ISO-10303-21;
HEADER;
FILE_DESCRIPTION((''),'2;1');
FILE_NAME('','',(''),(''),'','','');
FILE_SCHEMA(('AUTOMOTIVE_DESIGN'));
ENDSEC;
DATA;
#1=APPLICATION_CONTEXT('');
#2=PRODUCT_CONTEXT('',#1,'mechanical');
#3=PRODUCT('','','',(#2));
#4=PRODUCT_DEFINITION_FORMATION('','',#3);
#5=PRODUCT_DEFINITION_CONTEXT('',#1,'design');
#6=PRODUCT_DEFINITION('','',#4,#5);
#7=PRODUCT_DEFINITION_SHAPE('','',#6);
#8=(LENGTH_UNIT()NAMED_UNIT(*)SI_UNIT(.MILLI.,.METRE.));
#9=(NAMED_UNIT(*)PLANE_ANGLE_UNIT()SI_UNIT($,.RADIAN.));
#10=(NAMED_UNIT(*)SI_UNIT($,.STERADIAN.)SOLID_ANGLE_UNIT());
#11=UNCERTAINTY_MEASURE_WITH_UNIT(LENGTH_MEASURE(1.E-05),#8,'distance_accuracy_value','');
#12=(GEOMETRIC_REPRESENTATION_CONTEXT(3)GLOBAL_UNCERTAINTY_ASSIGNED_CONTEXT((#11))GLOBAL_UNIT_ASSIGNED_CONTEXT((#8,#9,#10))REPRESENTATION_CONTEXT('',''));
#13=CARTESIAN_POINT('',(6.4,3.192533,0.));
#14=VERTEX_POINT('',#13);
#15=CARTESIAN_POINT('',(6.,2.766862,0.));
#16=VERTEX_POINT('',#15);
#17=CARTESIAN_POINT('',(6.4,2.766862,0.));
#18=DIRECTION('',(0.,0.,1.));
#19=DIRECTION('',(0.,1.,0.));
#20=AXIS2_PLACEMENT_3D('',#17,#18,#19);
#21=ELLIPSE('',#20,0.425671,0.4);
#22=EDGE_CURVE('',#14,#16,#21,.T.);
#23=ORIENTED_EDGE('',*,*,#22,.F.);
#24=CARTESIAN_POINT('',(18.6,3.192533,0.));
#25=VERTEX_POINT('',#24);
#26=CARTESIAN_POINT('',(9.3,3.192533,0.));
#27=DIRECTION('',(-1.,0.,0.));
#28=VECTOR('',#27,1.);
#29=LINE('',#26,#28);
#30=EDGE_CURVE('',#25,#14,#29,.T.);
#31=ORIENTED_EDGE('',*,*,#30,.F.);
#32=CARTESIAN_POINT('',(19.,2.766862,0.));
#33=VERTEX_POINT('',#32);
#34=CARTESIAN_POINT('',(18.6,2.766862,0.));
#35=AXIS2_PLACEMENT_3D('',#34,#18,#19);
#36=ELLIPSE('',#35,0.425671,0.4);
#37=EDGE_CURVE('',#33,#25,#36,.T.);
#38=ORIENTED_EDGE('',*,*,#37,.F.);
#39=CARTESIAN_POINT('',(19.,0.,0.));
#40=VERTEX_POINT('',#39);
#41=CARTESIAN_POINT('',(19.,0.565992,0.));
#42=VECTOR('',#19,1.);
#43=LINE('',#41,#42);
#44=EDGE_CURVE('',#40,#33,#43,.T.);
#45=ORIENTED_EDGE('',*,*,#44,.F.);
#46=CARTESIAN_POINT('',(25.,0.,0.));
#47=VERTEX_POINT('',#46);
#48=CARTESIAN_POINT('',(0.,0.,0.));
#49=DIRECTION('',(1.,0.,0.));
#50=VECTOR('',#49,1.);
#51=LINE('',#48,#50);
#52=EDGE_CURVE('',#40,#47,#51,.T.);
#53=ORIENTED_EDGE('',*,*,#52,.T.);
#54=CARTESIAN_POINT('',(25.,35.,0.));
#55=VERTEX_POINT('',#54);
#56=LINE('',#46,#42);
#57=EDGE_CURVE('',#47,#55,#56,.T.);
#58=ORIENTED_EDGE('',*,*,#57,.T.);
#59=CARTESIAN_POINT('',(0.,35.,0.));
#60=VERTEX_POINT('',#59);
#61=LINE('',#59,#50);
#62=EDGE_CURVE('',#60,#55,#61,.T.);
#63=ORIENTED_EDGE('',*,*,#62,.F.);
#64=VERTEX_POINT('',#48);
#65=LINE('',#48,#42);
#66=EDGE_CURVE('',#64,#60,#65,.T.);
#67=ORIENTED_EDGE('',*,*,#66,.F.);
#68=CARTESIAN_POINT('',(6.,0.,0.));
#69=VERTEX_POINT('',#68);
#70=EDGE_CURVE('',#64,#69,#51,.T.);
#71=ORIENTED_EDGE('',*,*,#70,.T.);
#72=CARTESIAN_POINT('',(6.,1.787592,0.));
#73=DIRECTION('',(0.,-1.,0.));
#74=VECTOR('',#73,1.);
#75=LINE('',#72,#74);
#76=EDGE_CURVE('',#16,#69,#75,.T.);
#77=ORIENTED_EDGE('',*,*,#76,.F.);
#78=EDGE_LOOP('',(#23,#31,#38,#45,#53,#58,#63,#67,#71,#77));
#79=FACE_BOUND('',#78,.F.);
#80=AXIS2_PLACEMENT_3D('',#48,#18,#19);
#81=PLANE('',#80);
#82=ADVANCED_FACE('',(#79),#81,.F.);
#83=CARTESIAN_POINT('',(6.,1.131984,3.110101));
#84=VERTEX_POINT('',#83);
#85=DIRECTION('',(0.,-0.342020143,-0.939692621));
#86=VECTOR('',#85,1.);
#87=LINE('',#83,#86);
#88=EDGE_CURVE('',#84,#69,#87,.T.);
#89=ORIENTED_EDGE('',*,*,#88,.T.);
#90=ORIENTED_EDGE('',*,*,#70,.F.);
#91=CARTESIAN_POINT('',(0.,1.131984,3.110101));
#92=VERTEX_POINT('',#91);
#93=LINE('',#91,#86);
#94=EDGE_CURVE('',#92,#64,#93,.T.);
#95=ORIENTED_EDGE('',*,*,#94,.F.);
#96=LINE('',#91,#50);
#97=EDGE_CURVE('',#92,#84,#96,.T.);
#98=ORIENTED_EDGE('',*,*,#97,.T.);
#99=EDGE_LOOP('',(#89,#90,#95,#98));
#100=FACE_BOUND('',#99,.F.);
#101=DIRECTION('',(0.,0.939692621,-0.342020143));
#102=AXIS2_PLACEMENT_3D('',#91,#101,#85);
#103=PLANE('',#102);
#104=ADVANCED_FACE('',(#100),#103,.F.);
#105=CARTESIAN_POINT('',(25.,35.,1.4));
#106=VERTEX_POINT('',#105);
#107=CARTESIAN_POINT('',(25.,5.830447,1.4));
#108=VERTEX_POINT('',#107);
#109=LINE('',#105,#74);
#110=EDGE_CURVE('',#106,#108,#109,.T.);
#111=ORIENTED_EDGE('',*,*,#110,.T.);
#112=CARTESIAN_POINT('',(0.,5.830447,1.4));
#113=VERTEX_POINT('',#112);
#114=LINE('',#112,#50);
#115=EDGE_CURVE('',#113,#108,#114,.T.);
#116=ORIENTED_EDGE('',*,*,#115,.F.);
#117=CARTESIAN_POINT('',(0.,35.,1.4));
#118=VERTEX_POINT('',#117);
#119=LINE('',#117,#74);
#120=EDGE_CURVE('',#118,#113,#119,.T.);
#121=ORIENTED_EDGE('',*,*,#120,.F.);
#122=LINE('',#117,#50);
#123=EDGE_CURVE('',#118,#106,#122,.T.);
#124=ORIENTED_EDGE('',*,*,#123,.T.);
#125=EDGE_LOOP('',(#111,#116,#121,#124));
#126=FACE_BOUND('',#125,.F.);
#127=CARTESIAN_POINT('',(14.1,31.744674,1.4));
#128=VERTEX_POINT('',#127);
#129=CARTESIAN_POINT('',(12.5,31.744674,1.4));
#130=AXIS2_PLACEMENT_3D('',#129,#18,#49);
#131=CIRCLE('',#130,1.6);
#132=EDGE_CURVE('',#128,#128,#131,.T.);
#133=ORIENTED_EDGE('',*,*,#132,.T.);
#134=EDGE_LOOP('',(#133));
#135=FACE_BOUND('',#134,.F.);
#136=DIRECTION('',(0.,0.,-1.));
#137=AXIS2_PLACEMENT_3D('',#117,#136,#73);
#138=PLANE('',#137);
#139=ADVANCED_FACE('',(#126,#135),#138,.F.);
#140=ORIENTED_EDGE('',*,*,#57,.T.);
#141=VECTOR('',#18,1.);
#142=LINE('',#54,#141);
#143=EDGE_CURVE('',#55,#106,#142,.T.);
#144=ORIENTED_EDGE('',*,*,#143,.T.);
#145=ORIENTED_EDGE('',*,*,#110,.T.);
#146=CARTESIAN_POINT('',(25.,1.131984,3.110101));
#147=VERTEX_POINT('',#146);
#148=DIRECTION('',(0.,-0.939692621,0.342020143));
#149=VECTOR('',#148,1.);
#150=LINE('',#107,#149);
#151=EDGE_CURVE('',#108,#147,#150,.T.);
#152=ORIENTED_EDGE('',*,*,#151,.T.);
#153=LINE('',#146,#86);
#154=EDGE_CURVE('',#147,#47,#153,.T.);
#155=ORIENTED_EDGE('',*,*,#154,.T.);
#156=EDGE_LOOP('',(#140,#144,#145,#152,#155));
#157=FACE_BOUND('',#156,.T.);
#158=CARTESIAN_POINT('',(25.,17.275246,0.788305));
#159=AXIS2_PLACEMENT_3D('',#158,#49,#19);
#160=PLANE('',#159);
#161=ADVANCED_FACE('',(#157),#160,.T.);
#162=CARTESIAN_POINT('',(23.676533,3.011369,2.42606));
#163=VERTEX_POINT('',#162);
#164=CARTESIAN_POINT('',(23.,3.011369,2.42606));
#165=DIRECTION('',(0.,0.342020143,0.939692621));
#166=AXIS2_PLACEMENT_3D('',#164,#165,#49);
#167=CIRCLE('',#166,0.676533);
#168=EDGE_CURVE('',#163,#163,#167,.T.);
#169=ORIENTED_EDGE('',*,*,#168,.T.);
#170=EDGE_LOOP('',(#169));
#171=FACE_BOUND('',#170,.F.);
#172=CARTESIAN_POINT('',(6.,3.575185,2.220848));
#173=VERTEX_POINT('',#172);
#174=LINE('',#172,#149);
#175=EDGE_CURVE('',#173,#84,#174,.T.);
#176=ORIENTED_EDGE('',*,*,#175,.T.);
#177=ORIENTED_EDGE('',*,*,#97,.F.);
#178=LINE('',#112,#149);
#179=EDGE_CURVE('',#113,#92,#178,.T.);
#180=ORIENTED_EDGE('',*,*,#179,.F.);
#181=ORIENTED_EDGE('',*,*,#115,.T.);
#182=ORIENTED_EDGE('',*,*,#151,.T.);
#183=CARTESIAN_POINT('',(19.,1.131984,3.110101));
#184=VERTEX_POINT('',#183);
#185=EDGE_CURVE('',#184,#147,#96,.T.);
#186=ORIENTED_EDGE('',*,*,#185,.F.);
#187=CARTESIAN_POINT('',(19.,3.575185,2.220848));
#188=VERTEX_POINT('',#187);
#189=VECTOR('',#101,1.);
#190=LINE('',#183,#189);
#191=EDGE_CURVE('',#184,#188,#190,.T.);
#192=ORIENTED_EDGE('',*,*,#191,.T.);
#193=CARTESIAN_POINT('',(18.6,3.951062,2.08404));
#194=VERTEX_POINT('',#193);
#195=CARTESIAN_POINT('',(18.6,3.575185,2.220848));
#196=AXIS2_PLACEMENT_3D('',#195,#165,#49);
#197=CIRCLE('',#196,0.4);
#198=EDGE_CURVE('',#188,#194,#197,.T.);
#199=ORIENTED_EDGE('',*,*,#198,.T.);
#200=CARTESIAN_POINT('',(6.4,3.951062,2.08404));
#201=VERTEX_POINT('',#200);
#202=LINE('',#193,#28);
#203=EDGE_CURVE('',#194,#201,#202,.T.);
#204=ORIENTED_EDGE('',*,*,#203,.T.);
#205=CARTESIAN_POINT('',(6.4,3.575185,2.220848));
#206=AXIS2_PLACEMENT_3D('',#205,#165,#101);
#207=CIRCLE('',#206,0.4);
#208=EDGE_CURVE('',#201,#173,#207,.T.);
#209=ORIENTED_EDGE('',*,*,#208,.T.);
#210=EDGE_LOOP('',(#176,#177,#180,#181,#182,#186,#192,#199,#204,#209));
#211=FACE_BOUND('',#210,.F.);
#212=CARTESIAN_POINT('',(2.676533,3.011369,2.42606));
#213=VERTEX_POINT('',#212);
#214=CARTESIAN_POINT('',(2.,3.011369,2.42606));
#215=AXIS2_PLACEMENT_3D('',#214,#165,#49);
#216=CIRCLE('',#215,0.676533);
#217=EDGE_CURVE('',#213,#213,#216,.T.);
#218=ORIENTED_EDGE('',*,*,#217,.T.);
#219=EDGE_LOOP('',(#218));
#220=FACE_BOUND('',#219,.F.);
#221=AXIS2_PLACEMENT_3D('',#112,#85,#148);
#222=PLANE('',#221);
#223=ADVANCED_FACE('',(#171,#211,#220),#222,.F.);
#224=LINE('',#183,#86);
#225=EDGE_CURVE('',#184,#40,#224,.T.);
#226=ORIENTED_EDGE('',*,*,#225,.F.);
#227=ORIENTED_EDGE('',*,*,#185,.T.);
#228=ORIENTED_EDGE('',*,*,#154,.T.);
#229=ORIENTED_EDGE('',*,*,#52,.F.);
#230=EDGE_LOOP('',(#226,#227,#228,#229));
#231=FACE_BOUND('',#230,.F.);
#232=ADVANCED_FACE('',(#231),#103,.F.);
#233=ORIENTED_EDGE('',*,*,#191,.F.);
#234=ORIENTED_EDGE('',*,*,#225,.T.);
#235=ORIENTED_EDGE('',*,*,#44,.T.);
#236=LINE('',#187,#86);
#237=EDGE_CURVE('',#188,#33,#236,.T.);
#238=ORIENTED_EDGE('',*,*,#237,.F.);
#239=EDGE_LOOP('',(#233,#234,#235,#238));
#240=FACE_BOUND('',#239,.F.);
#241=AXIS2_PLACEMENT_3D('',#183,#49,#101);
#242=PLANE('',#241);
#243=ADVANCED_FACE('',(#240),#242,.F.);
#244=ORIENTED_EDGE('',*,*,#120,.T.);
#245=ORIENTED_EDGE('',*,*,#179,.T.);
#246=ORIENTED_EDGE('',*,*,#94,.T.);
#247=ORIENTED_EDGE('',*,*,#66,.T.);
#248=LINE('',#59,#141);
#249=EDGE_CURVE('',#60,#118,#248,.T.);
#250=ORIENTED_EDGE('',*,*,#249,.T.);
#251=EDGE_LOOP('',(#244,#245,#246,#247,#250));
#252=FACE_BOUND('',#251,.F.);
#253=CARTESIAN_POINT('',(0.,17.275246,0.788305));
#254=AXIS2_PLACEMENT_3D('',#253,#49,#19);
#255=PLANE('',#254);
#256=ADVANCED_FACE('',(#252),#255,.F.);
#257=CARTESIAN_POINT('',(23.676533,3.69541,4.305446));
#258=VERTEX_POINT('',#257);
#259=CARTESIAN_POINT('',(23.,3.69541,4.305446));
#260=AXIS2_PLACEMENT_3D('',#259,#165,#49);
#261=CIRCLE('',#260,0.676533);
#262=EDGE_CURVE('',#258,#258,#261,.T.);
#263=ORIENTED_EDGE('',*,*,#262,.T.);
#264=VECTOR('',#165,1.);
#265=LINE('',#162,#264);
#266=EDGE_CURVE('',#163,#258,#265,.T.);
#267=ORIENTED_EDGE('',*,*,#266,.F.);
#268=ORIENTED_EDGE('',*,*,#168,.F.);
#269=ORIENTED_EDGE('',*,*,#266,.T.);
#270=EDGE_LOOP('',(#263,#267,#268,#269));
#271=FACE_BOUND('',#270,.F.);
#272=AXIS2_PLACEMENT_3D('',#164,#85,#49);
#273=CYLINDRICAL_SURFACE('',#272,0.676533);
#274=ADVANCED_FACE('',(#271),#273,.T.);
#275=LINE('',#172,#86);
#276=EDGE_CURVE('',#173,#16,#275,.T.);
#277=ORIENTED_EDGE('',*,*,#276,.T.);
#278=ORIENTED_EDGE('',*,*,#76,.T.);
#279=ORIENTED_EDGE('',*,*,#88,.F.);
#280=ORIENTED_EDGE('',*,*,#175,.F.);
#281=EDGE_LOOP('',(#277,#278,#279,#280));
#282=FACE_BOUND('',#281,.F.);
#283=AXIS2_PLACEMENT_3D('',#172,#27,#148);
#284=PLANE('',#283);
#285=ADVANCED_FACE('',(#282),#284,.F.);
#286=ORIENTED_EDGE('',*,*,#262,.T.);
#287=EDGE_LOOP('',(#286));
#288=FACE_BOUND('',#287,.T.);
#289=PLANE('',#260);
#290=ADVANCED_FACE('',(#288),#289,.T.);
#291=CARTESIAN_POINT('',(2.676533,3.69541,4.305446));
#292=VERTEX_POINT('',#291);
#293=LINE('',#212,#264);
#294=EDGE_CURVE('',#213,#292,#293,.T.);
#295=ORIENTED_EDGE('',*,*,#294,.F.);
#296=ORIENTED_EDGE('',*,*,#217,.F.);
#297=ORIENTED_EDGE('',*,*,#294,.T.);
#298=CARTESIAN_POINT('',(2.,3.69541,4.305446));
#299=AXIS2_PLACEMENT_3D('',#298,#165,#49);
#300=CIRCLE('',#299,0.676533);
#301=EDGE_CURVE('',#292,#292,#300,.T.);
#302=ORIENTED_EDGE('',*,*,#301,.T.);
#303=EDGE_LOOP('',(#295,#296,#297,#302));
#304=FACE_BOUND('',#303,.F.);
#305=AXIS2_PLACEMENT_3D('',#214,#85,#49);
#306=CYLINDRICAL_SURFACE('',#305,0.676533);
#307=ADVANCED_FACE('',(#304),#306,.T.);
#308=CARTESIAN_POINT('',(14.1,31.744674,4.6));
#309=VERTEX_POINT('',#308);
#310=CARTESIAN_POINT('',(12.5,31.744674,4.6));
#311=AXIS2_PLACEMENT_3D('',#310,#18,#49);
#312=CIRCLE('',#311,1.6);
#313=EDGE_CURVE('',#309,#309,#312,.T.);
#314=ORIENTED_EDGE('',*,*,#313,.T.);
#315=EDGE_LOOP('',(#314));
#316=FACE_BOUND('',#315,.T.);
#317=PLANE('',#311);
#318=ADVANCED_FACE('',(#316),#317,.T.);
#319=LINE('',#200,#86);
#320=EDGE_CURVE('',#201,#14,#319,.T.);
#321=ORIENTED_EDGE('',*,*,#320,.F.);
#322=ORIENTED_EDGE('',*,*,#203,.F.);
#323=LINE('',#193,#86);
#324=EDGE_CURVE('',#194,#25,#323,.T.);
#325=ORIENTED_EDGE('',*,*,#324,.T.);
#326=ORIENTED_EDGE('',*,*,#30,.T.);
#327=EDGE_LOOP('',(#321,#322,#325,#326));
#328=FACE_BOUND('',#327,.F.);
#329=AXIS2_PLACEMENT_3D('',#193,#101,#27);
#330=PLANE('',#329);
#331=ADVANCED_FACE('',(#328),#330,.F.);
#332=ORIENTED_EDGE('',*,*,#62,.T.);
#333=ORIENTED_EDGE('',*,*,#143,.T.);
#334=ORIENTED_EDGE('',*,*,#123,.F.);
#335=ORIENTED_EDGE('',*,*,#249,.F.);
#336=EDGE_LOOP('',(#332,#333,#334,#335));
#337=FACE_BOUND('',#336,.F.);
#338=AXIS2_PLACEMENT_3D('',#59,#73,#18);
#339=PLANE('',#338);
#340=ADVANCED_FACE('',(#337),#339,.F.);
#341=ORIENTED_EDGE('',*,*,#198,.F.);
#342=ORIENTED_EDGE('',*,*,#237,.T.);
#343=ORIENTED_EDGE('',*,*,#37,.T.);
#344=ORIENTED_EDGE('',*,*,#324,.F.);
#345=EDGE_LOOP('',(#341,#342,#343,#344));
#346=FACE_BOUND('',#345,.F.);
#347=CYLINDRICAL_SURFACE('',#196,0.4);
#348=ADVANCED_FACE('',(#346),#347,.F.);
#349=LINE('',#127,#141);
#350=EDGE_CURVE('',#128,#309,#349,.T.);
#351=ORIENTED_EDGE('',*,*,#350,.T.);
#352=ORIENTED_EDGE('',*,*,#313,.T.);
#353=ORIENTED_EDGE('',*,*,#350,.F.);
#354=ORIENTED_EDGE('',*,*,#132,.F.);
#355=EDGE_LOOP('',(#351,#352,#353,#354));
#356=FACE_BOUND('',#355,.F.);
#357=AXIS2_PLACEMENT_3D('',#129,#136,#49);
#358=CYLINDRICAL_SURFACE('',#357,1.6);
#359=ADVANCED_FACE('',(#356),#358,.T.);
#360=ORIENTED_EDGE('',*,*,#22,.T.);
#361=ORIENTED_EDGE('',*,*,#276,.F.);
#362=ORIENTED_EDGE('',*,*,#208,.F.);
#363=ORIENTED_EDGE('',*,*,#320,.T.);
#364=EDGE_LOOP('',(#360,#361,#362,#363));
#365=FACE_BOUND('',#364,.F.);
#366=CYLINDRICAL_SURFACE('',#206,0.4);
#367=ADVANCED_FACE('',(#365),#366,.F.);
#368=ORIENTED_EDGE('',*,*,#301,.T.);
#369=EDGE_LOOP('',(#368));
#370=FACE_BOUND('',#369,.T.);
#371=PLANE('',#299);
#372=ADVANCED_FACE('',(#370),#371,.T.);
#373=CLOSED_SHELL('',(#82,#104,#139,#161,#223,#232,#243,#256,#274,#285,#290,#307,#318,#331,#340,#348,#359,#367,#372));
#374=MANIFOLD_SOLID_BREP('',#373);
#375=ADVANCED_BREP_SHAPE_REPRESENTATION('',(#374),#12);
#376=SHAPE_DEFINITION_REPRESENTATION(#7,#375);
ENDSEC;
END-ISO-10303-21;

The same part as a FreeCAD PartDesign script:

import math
import FreeCAD as App
import Part
import Sketcher
Q = App.Units.Quantity

doc = App.newDocument("Part")
params = doc.addObject("Spreadsheet::Sheet", "Params")
for row, (alias, value) in enumerate([
    ("sketch1_width", "35 mm"),
    ("sketch1_length", "5 mm"),
    ("sketch1_height", "1.4 mm"),
    ("pad1_length", "25 mm"),
    ("sketch2_radius", "0.4 mm"),
    ("sketch2_width", "13 mm"),
    ("sketch2_height", "2.6 mm"),
    ("pad2_length", "2 mm"),
    ("sketch4_diameter", "3.2 mm"),
    ("pad3_length", "3.2 mm"),
], start=1):
    params.set(f"A{row}", alias)
    params.set(f"B{row}", "=" + value)
    params.setAlias(f"B{row}", alias)

body = doc.addObject("PartDesign::Body", "Body")

# Sketch on YZ plane
sketch1 = body.newObject("Sketcher::SketchObject", "Sketch")
sketch1.AttachmentSupport = (doc.getObject("YZ_Plane"), [""])
sketch1.MapMode = "FlatFace"
sketch1.addGeometry([
    Part.LineSegment(App.Vector(0, 0, 0), App.Vector(35, 0, 0)),  # 0
    Part.LineSegment(App.Vector(35, 0, 0), App.Vector(35, 1.4, 0)),  # 1
    Part.LineSegment(App.Vector(35, 1.4, 0), App.Vector(5.8, 1.4, 0)),  # 2
    Part.LineSegment(App.Vector(5.8, 1.4, 0), App.Vector(1.1, 3.1, 0)),  # 3
    Part.LineSegment(App.Vector(1.1, 3.1, 0), App.Vector(0, 0, 0)),  # 4
], False)
sketch1.addConstraint([
    Sketcher.Constraint("Coincident", 0, 2, 1, 1),
    Sketcher.Constraint("Coincident", 1, 2, 2, 1),
    Sketcher.Constraint("Coincident", 2, 2, 3, 1),
    Sketcher.Constraint("Coincident", 3, 2, 4, 1),
    Sketcher.Constraint("Coincident", 4, 2, 0, 1),
    Sketcher.Constraint("Horizontal", 0),
    Sketcher.Constraint("Vertical", 1),
    Sketcher.Constraint("Horizontal", 2),
    Sketcher.Constraint("Coincident", 4, 2, -1, 1),
    Sketcher.Constraint("Perpendicular", 3, 4),
    Sketcher.Constraint("DistanceX", 0, 1, 0, 2, Q("35 mm")),
    Sketcher.Constraint("Angle", 3, Q("160 deg")),
    Sketcher.Constraint("Distance", 3, Q("5 mm")),
    Sketcher.Constraint("DistanceY", 1, 1, 1, 2, Q("1.4 mm")),
])
sketch1.setExpression("Constraints[10]", "Params.sketch1_width")
sketch1.setExpression("Constraints[12]", "Params.sketch1_length")
sketch1.setExpression("Constraints[13]", "Params.sketch1_height")
pad1 = body.newObject("PartDesign::Pad", "Pad")
pad1.Profile = sketch1
pad1.setExpression("Length", "Params.pad1_length")

# Sketch on an angled plane
sketch2 = body.newObject("Sketcher::SketchObject", "Sketch001")
sketch2.Placement = App.Placement(App.Vector(0, 1.131984, 3.110101), App.Rotation(App.Vector(1, 0, 0), App.Vector(0, 0.939692621, -0.342020143), App.Vector(0, 0.342020143, 0.939692621), "ZXY"))
sketch2.addGeometry([
    Part.LineSegment(App.Vector(6, 0, 0), App.Vector(19, 0, 0)),  # 0
    Part.LineSegment(App.Vector(19, 0, 0), App.Vector(19, 2.6, 0)),  # 1
    Part.ArcOfCircle(Part.Circle(App.Vector(18.6, 2.6, 0), App.Vector(0, 0, 1), 0.4), math.radians(0), math.radians(90)),  # 2
    Part.LineSegment(App.Vector(18.6, 3, 0), App.Vector(6.4, 3, 0)),  # 3
    Part.ArcOfCircle(Part.Circle(App.Vector(6.4, 2.6, 0), App.Vector(0, 0, 1), 0.4), math.radians(90), math.radians(180)),  # 4
    Part.LineSegment(App.Vector(6, 2.6, 0), App.Vector(6, 0, 0)),  # 5
], False)
sketch2.addConstraint([
    Sketcher.Constraint("Coincident", 0, 2, 1, 1),
    Sketcher.Constraint("Tangent", 1, 2, 2, 1),
    Sketcher.Constraint("Tangent", 2, 2, 3, 1),
    Sketcher.Constraint("Tangent", 3, 2, 4, 1),
    Sketcher.Constraint("Tangent", 4, 2, 5, 1),
    Sketcher.Constraint("Coincident", 5, 2, 0, 1),
    Sketcher.Constraint("Horizontal", 0),
    Sketcher.Constraint("Vertical", 1),
    Sketcher.Constraint("Horizontal", 3),
    Sketcher.Constraint("Vertical", 5),
    Sketcher.Constraint("Equal", 2, 4),
    Sketcher.Constraint("PointOnObject", 0, 2, -1),
    Sketcher.Constraint("Radius", 2, Q("0.4 mm")),
    Sketcher.Constraint("DistanceX", 0, 1, 0, 2, Q("13 mm")),
    Sketcher.Constraint("DistanceY", 1, 1, 1, 2, Q("2.6 mm")),
    Sketcher.Constraint("DistanceX", -1, 1, 0, 2, Q("19 mm")),
])
sketch2.setExpression("Constraints[12]", "Params.sketch2_radius")
sketch2.setExpression("Constraints[13]", "Params.sketch2_width")
sketch2.setExpression("Constraints[14]", "Params.sketch2_height")
pocket1 = body.newObject("PartDesign::Pocket", "Pocket")
pocket1.Profile = sketch2
pocket1.Type = "ThroughAll"

# Sketch on an angled plane
sketch3 = body.newObject("Sketcher::SketchObject", "Sketch002")
sketch3.Placement = App.Placement(App.Vector(0, 1.131984, 3.110101), App.Rotation(App.Vector(1, 0, 0), App.Vector(0, 0.939692621, -0.342020143), App.Vector(0, 0.342020143, 0.939692621), "ZXY"))
sketch3.addGeometry([
    Part.Circle(App.Vector(23, 2, 0), App.Vector(0, 0, 1), 0.7),
    Part.Circle(App.Vector(2, 2, 0), App.Vector(0, 0, 1), 0.7),
], False)
sketch3.addConstraint([
    Sketcher.Constraint("Equal", 0, 1),
    Sketcher.Constraint("Horizontal", 0, 3, 1, 3),
    Sketcher.Constraint("DistanceX", -1, 1, 0, 3, Q("23 mm")),
    Sketcher.Constraint("DistanceY", -1, 1, 0, 3, Q("2 mm")),
    Sketcher.Constraint("DistanceX", -1, 1, 1, 3, Q("2 mm")),
    Sketcher.Constraint("Diameter", 0, Q("1.353066 mm")),
])
pad2 = body.newObject("PartDesign::Pad", "Pad001")
pad2.Profile = sketch3
pad2.setExpression("Length", "Params.pad2_length")

# Sketch on XY plane
sketch4 = body.newObject("Sketcher::SketchObject", "Sketch003")
sketch4.AttachmentSupport = (doc.getObject("XY_Plane"), [""])
sketch4.MapMode = "FlatFace"
sketch4.AttachmentOffset = App.Placement(App.Vector(0, 0, 1.4), App.Rotation())
sketch4.addGeometry(Part.Circle(App.Vector(12.5, 31.7, 0), App.Vector(0, 0, 1), 1.6), False)
sketch4.addConstraint([
    Sketcher.Constraint("Diameter", 0, Q("3.2 mm")),
    Sketcher.Constraint("DistanceX", -1, 1, 0, 3, Q("12.5 mm")),
    Sketcher.Constraint("DistanceY", -1, 1, 0, 3, Q("31.744674 mm")),
])
sketch4.setExpression("Constraints[0]", "Params.sketch4_diameter")
pad3 = body.newObject("PartDesign::Pad", "Pad002")
pad3.Profile = sketch4
pad3.setExpression("Length", "Params.pad3_length")

doc.recompute()
